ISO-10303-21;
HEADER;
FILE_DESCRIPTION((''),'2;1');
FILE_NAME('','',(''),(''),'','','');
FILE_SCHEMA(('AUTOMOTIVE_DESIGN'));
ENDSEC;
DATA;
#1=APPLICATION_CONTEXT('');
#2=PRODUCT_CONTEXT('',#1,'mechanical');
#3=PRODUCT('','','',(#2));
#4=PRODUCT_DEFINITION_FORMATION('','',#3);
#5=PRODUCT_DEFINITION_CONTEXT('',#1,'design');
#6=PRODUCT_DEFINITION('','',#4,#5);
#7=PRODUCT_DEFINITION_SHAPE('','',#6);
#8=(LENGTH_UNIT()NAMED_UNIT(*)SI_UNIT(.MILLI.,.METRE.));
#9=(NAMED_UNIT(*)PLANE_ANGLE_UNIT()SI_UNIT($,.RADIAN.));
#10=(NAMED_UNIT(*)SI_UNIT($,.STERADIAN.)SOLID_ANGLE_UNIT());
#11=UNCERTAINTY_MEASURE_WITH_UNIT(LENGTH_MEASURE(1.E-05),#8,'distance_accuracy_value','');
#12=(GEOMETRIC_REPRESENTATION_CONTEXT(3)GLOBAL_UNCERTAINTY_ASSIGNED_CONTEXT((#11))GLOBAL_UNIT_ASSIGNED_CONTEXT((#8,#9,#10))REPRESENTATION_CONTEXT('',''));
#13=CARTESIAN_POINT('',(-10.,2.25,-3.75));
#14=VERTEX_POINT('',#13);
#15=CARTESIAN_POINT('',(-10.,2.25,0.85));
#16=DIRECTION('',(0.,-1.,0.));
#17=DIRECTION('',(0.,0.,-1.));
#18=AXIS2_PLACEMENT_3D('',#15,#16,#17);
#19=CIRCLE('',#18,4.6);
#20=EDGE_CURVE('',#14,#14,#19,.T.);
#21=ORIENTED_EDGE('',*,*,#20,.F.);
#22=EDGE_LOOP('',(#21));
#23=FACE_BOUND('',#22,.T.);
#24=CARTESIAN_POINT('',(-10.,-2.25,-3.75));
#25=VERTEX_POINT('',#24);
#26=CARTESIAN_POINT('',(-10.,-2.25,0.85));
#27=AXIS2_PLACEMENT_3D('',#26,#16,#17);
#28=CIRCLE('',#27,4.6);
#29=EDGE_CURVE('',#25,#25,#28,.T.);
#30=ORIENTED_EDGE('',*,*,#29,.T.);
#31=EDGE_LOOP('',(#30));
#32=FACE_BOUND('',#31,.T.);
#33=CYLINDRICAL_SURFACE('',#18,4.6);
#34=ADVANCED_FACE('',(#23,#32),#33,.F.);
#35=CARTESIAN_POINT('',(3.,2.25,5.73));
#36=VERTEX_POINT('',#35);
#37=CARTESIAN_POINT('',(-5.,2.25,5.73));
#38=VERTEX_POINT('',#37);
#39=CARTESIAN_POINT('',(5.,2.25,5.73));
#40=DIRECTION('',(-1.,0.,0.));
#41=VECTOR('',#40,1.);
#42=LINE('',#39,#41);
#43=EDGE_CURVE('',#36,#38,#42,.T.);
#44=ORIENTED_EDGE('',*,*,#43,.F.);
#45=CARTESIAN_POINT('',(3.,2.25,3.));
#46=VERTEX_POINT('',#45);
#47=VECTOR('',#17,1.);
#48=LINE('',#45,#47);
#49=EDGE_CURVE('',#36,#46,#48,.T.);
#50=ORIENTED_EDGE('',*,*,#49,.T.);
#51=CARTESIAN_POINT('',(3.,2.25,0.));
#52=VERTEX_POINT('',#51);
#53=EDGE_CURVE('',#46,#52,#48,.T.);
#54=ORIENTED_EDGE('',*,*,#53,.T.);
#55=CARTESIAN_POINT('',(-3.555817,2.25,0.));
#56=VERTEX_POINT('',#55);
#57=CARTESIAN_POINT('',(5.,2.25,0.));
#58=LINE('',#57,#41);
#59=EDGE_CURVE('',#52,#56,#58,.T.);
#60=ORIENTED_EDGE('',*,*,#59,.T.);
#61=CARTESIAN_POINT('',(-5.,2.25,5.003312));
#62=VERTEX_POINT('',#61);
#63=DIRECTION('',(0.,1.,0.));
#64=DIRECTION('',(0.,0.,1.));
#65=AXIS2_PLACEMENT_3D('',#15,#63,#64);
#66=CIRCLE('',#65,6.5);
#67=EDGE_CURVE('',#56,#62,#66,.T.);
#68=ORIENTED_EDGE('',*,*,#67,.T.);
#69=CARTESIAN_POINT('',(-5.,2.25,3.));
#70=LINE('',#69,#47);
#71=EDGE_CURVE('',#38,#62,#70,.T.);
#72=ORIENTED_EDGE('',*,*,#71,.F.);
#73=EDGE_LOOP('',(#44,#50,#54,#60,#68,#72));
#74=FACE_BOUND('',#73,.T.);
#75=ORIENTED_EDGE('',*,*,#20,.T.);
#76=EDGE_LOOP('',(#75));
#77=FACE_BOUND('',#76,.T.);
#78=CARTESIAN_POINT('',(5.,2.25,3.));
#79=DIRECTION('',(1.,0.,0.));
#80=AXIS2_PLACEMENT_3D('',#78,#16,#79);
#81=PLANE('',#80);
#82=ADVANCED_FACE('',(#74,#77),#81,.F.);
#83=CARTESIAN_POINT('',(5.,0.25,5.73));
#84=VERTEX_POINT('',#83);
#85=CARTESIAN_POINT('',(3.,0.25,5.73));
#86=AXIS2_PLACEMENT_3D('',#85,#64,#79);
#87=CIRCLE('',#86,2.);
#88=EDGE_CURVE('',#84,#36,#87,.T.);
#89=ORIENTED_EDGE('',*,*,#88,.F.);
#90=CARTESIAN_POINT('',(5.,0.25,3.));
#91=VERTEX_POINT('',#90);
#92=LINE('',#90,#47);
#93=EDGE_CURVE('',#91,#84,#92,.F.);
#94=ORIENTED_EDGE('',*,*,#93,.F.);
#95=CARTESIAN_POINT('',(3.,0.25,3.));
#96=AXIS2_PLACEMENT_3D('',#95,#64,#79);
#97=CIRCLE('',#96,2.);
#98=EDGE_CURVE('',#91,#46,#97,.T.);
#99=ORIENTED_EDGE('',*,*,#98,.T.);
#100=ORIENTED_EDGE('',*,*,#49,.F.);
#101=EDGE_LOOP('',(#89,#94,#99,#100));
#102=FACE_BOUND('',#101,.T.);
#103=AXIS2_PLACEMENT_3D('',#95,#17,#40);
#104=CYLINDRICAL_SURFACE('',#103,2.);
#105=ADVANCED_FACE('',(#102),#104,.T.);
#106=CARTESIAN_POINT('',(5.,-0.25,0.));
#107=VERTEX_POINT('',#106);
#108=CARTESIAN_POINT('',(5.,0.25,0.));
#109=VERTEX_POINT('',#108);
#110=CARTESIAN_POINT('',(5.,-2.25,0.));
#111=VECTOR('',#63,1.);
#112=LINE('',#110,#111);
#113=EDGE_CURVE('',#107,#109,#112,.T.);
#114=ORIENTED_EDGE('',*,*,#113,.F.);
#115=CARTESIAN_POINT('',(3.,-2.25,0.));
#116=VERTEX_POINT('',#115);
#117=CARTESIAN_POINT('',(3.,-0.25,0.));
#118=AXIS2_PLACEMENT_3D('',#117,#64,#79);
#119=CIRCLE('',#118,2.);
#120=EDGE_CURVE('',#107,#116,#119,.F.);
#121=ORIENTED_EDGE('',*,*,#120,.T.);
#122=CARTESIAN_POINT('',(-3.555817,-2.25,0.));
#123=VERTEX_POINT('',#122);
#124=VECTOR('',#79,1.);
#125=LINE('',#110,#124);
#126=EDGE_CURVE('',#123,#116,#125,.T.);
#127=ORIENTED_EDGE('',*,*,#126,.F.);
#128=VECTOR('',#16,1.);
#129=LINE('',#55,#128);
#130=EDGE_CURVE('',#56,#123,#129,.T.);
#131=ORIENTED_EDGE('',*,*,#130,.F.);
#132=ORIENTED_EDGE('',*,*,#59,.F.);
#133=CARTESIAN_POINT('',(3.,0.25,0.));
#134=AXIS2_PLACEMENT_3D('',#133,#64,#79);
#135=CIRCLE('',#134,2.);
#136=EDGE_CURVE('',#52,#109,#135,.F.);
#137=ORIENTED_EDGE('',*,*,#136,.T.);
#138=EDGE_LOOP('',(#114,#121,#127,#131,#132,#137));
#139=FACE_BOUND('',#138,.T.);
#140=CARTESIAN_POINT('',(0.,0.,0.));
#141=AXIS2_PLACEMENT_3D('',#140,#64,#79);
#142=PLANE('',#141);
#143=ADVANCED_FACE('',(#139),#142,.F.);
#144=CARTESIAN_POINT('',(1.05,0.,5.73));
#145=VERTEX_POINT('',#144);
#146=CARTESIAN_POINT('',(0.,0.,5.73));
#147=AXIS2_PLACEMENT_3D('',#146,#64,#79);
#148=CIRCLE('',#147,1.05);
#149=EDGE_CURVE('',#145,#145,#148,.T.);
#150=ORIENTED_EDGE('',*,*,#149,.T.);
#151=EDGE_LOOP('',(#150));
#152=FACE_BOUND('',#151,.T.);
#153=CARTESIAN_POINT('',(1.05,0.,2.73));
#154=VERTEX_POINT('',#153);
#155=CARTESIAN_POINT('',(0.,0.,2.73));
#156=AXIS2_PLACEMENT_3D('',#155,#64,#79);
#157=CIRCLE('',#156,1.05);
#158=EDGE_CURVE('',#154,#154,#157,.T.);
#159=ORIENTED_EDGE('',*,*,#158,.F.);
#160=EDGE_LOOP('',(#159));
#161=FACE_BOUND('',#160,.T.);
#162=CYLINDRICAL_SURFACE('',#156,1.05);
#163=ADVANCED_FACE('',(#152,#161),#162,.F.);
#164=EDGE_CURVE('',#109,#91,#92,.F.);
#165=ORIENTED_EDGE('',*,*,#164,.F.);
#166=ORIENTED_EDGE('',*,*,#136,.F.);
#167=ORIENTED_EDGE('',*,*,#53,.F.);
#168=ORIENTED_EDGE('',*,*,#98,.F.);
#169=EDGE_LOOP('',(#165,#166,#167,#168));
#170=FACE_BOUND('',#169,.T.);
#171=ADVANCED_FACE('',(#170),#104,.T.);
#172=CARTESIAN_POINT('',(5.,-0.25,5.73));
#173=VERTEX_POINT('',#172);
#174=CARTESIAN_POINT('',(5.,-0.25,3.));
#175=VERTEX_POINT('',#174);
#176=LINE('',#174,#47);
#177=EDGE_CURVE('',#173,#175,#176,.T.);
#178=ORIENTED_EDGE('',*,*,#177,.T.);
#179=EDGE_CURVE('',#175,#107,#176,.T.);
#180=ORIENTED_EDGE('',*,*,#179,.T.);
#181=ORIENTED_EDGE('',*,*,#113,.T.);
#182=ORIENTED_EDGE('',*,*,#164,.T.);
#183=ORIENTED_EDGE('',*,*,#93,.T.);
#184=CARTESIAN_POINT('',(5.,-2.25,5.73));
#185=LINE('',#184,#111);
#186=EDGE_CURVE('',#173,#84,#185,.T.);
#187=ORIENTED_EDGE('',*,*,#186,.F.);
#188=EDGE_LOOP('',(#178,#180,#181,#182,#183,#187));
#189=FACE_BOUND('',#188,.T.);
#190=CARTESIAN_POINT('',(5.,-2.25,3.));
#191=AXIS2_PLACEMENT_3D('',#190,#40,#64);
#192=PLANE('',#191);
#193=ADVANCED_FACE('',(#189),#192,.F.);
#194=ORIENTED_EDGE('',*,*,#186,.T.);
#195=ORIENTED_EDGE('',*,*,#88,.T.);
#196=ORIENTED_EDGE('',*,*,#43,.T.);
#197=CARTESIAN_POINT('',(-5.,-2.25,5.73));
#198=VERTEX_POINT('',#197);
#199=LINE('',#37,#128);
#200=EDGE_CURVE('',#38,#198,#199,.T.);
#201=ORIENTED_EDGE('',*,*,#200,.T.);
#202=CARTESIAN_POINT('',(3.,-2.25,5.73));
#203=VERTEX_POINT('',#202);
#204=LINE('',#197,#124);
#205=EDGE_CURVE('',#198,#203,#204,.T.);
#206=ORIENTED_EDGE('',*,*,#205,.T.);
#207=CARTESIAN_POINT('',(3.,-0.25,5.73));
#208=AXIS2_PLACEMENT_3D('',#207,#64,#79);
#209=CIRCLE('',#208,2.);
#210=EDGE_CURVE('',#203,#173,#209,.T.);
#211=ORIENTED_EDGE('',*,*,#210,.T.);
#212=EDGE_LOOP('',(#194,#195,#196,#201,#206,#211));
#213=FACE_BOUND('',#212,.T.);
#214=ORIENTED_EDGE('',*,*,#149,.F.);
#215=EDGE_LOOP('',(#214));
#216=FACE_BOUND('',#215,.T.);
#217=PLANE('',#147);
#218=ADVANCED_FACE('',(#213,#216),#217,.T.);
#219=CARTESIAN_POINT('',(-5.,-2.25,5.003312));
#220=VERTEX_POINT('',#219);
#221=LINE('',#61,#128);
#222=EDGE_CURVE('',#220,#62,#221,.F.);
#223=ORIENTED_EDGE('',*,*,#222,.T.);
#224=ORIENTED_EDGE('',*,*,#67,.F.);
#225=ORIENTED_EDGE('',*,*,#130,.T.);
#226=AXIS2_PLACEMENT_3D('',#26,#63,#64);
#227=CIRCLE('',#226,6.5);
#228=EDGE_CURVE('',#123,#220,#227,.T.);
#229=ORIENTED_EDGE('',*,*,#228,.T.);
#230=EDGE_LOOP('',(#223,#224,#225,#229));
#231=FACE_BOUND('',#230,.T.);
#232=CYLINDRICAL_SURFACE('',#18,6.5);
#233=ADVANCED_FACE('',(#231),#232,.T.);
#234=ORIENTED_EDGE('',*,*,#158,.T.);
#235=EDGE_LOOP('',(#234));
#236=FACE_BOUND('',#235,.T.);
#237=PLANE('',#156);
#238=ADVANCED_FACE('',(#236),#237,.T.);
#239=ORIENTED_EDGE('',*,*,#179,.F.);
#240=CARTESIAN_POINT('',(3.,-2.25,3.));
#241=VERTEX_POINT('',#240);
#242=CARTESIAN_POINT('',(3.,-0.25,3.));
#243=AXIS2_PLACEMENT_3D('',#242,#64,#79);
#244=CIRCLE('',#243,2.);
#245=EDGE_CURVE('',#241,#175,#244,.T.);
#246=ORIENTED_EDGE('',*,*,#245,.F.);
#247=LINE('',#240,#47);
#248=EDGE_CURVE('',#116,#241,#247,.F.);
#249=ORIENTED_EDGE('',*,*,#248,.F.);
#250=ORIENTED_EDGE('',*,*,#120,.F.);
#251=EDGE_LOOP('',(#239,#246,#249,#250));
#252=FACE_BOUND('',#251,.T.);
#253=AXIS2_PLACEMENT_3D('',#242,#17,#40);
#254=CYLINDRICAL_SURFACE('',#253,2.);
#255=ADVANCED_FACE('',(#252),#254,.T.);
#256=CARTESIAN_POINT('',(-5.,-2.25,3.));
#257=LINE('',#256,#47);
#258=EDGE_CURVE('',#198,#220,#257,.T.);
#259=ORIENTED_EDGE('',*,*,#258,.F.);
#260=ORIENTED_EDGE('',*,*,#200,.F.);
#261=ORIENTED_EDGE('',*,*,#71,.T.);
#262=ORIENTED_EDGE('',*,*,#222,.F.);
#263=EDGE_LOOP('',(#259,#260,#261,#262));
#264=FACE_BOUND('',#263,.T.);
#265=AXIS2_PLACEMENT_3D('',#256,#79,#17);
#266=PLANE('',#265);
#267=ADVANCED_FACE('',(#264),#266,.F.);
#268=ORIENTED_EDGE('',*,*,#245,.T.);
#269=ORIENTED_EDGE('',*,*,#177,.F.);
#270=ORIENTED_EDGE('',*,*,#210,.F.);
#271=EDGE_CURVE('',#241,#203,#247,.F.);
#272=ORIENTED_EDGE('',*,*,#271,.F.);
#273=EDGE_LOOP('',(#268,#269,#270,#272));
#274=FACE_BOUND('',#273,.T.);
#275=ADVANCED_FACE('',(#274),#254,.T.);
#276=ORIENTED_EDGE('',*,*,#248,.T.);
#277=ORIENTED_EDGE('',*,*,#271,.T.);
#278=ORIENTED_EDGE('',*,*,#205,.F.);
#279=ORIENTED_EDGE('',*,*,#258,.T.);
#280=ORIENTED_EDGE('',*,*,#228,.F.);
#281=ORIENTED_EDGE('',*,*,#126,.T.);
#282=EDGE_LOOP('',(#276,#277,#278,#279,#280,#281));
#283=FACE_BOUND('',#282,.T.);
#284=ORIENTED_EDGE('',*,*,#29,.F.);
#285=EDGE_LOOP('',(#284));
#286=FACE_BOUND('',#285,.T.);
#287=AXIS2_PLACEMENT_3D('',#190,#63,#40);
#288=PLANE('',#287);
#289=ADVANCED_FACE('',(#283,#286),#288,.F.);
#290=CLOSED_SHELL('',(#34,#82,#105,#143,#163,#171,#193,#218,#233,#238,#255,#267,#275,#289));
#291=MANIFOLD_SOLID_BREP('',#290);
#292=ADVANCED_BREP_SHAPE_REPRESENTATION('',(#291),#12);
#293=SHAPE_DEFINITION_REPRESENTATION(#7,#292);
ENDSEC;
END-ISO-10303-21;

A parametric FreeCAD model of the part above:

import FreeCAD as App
import Part
import Sketcher
from FreeCAD import Vector


def edges_at(feature, points):
    """Names of the edges that pass closest to the given points."""
    edges = feature.Shape.Edges
    near = lambda p: min(range(len(edges)), key=lambda i: edges[i].distToShape(Part.Vertex(*p))[0])
    return sorted({f"Edge{near(p) + 1}" for p in points})


def add_polygon(sketch, points):
    """Adds a closed chain of lines whose ends are joined by coincident constraints."""
    first, n = sketch.GeometryCount, len(points)
    for a, b in zip(points, points[1:] + points[:1]):
        sketch.addGeometry(Part.LineSegment(App.Vector(*a, 0), App.Vector(*b, 0)), False)
    for i in range(n):
        sketch.addConstraint(Sketcher.Constraint("Coincident", first + i, 2, first + (i + 1) % n, 1))

doc = App.newDocument("Part")
body = doc.addObject("PartDesign::Body", "Body")

# Sketch on XY plane
sketch1 = body.newObject("Sketcher::SketchObject", "Sketch")
sketch1.AttachmentSupport = (doc.getObject("XY_Plane"), [""])
sketch1.MapMode = "FlatFace"
add_polygon(sketch1, [(-5, 2.2), (-5, -2.2), (5, -2.2), (5, 2.2)])  # lines 0-3
sketch1.addConstraint(Sketcher.Constraint("Vertical", 0))
sketch1.addConstraint(Sketcher.Constraint("Horizontal", 1))
sketch1.addConstraint(Sketcher.Constraint("Vertical", 2))
sketch1.addConstraint(Sketcher.Constraint("Horizontal", 3))
sketch1.addConstraint(Sketcher.Constraint("Symmetric", 0, 2, 2, 2, -1, 1))
sketch1.addConstraint(Sketcher.Constraint("DistanceX", 1, 1, 1, 2, 10.0))
sketch1.addConstraint(Sketcher.Constraint("DistanceY", 0, 2, 0, 1, 4.5))
pad1 = body.newObject("PartDesign::Pad", "Pad")
pad1.Profile = sketch1
pad1.Length = 3
doc.recompute()

fillet = body.newObject("PartDesign::Fillet", "Fillet")
fillet.Base = (pad1, edges_at(pad1, [(5, 2.25, 1.5), (5, -2.25, 1.5)]))
fillet.Radius = 2
body2 = doc.addObject("PartDesign::Body", "Body001")

# Sketch on XZ plane
sketch2 = body2.newObject("Sketcher::SketchObject", "Sketch001")
sketch2.AttachmentSupport = (doc.getObject("XZ_Plane001"), [""])
sketch2.MapMode = "FlatFace"
sketch2.addGeometry(Part.Circle(Vector(-10, 1, 0), Vector(0, 0, 1), 6), False)
sketch2.addConstraint(Sketcher.Constraint("Diameter", 0, 13.0))
sketch2.addConstraint(Sketcher.Constraint("DistanceX", 0, 3, -1, 1, 10.0))
sketch2.addConstraint(Sketcher.Constraint("DistanceY", -1, 1, 0, 3, 0.85))
pad2 = body2.newObject("PartDesign::Pad", "Pad001")
pad2.Profile = sketch2
pad2.Length = 4.5
pad2.Midplane = True

# Sketch on XZ plane
sketch3 = body2.newObject("Sketcher::SketchObject", "Sketch002")
sketch3.AttachmentSupport = (doc.getObject("XZ_Plane001"), [""])
sketch3.MapMode = "FlatFace"
sketch3.AttachmentOffset = App.Placement(Vector(0, 0, 2.25), App.Rotation())
sketch3.addGeometry(Part.Circle(Vector(-10, 0.8, 0), Vector(0, 0, 1), 4.6), False)
sketch3.addConstraint(Sketcher.Constraint("Diameter", 0, 9.2))
sketch3.addConstraint(Sketcher.Constraint("DistanceX", 0, 3, -1, 1, 10.0))
sketch3.addConstraint(Sketcher.Constraint("DistanceY", -1, 1, 0, 3, 0.85))
pocket1 = body2.newObject("PartDesign::Pocket", "Pocket")
pocket1.Profile = sketch3
pocket1.Type = "ThroughAll"
doc.recompute()

boolean = body.newObject("PartDesign::Boolean", "Boolean")
boolean.Type = "Fuse"
boolean.addObjects([body2])

# Sketch on XY plane
sketch4 = body.newObject("Sketcher::SketchObject", "Sketch003")
sketch4.AttachmentSupport = (doc.getObject("XY_Plane"), [""])
sketch4.MapMode = "FlatFace"
sketch4.AttachmentOffset = App.Placement(Vector(0, 0, 3), App.Rotation())
add_polygon(sketch4, [(-5, 2.2), (-5, -2.2), (5, -2.2), (5, 2.2)])  # lines 0-3
sketch4.addConstraint(Sketcher.Constraint("Vertical", 0))
sketch4.addConstraint(Sketcher.Constraint("Horizontal", 1))
sketch4.addConstraint(Sketcher.Constraint("Vertical", 2))
sketch4.addConstraint(Sketcher.Constraint("Horizontal", 3))
sketch4.addConstraint(Sketcher.Constraint("Symmetric", 0, 2, 2, 2, -1, 1))
sketch4.addConstraint(Sketcher.Constraint("DistanceX", 1, 1, 1, 2, 10.0))
sketch4.addConstraint(Sketcher.Constraint("DistanceY", 0, 2, 0, 1, 4.5))
pad3 = body.newObject("PartDesign::Pad", "Pad002")
pad3.Profile = sketch4
pad3.Length = 2.73

# Sketch on XY plane
sketch5 = body.newObject("Sketcher::SketchObject", "Sketch004")
sketch5.AttachmentSupport = (doc.getObject("XY_Plane"), [""])
sketch5.MapMode = "FlatFace"
sketch5.AttachmentOffset = App.Placement(Vector(0, 0, 5.73), App.Rotation())
sketch5.addGeometry(Part.Circle(Vector(0, 0, 0), Vector(0, 0, 1), 1.1), False)
sketch5.addConstraint(Sketcher.Constraint("Coincident", 0, 3, -1, 1))
sketch5.addConstraint(Sketcher.Constraint("Diameter", 0, 2.1))
pocket2 = body.newObject("PartDesign::Pocket", "Pocket001")
pocket2.Profile = sketch5
pocket2.Length = 3
doc.recompute()

fillet2 = body.newObject("PartDesign::Fillet", "Fillet001")
fillet2.Base = (pocket2, edges_at(pocket2, [(5, 2.25, 4.365), (5, -2.25, 4.365)]))
fillet2.Radius = 2

doc.recompute()
